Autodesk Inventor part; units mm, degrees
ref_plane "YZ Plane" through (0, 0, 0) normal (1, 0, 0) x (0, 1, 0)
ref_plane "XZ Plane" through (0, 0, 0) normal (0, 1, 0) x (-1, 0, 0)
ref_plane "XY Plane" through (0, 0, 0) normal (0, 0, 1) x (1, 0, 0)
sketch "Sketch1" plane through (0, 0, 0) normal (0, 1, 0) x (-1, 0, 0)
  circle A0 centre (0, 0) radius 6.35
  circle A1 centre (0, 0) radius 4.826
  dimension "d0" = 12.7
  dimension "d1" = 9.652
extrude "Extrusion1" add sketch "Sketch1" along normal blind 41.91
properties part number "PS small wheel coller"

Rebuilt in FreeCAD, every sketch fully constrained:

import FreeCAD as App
import Part
import Sketcher

V = App.Vector
Q = App.Units.Quantity

doc = App.newDocument("Part")
body = doc.addObject("PartDesign::Body", "Body")

# Sketch on XZ plane
sketch1 = body.newObject("Sketcher::SketchObject", "Sketch")
sketch1.AttachmentSupport = (doc.getObject("XZ_Plane"), [""])
sketch1.MapMode = "FlatFace"
sketch1.addGeometry([
    Part.Circle(V(0, 0, 0), V(0, 0, 1), 6.35),
    Part.Circle(V(0, 0, 0), V(0, 0, 1), 4.826),
], False)
sketch1.addConstraint([
    Sketcher.Constraint("Coincident", 0, 3, -1, 1),
    Sketcher.Constraint("Coincident", 1, 3, -1, 1),
    Sketcher.Constraint("Diameter", 0, Q("0.5 in")),
    Sketcher.Constraint("Diameter", 1, Q("0.38 in")),
])
pad1 = body.newObject("PartDesign::Pad", "Pad")
pad1.Profile = sketch1
pad1.Length = Q("1.65 in")
pad1.Reversed = True

doc.recompute()
